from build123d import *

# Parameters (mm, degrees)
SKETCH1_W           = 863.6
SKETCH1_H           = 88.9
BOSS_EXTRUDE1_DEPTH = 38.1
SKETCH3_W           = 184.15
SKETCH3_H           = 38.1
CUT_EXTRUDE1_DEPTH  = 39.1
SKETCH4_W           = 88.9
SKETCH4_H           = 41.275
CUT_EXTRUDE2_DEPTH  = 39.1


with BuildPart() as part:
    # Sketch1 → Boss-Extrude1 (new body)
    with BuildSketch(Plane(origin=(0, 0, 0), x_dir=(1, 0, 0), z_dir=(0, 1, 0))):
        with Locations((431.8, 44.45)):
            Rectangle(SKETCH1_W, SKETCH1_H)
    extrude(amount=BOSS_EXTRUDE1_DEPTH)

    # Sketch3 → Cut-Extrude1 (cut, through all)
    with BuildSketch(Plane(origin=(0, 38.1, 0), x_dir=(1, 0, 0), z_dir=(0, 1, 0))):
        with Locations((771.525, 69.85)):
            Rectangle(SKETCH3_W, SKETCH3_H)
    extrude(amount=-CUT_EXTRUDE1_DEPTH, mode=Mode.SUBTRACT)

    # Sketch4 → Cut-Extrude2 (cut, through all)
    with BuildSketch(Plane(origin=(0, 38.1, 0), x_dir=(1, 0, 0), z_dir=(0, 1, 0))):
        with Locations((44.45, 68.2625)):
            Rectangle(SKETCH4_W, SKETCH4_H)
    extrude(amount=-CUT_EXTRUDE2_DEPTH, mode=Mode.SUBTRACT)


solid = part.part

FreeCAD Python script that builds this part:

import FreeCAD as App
import Part
import Sketcher
Q = App.Units.Quantity

doc = App.newDocument("Part")
body = doc.addObject("PartDesign::Body", "Body")

# Sketch on XZ plane
sketch1 = body.newObject("Sketcher::SketchObject", "Sketch")
sketch1.AttachmentSupport = (doc.getObject("XZ_Plane"), [""])
sketch1.MapMode = "FlatFace"
sketch1.addGeometry([
    Part.LineSegment(App.Vector(0, -89, 0), App.Vector(0, 0, 0)),
    Part.LineSegment(App.Vector(0, 0, 0), App.Vector(864, 0, 0)),
    Part.LineSegment(App.Vector(864, 0, 0), App.Vector(864, -89, 0)),
    Part.LineSegment(App.Vector(864, -89, 0), App.Vector(0, -89, 0)),
], False)
sketch1.addConstraint([
    Sketcher.Constraint("Coincident", 0, 2, 1, 1),
    Sketcher.Constraint("Coincident", 1, 2, 2, 1),
    Sketcher.Constraint("Coincident", 2, 2, 3, 1),
    Sketcher.Constraint("Coincident", 3, 2, 0, 1),
    Sketcher.Constraint("Vertical", 0),
    Sketcher.Constraint("Horizontal", 1),
    Sketcher.Constraint("Vertical", 2),
    Sketcher.Constraint("Horizontal", 3),
    Sketcher.Constraint("Coincident", 0, 2, -1, 1),
    Sketcher.Constraint("DistanceX", 1, 1, 1, 2, Q("34 in")),
    Sketcher.Constraint("DistanceY", 0, 1, 0, 2, Q("3.5 in")),
])
pad1 = body.newObject("PartDesign::Pad", "Pad")
pad1.Profile = sketch1
pad1.Length = Q("1.5 in")
pad1.Reversed = True

# Sketch on XZ plane
sketch2 = body.newObject("Sketcher::SketchObject", "Sketch001")
sketch2.AttachmentSupport = (doc.getObject("XZ_Plane"), [""])
sketch2.MapMode = "FlatFace"
sketch2.AttachmentOffset = App.Placement(App.Vector(0, 0, -1.5 * 25.4), App.Rotation())
sketch2.addGeometry([
    Part.LineSegment(App.Vector(679, -89, 0), App.Vector(679, -51, 0)),
    Part.LineSegment(App.Vector(679, -51, 0), App.Vector(864, -51, 0)),
    Part.LineSegment(App.Vector(864, -51, 0), App.Vector(864, -89, 0)),
    Part.LineSegment(App.Vector(864, -89, 0), App.Vector(679, -89, 0)),
], False)
sketch2.addConstraint([
    Sketcher.Constraint("Coincident", 0, 2, 1, 1),
    Sketcher.Constraint("Coincident", 1, 2, 2, 1),
    Sketcher.Constraint("Coincident", 2, 2, 3, 1),
    Sketcher.Constraint("Coincident", 3, 2, 0, 1),
    Sketcher.Constraint("Vertical", 0),
    Sketcher.Constraint("Horizontal", 1),
    Sketcher.Constraint("Vertical", 2),
    Sketcher.Constraint("Horizontal", 3),
    Sketcher.Constraint("DistanceY", 0, 1, 0, 2, Q("1.5 in")),
    Sketcher.Constraint("DistanceY", 0, 2, -1, 1, Q("2 in")),
    Sketcher.Constraint("DistanceX", -1, 1, 1, 2, Q("34 in")),
    Sketcher.Constraint("DistanceX", 1, 1, 1, 2, Q("7.25 in")),
])
pocket1 = body.newObject("PartDesign::Pocket", "Pocket")
pocket1.Profile = sketch2
pocket1.Type = "ThroughAll"
pocket1.Reversed = True

# Sketch on XZ plane
sketch3 = body.newObject("Sketcher::SketchObject", "Sketch002")
sketch3.AttachmentSupport = (doc.getObject("XZ_Plane"), [""])
sketch3.MapMode = "FlatFace"
sketch3.AttachmentOffset = App.Placement(App.Vector(0, 0, -1.5 * 25.4), App.Rotation())
sketch3.addGeometry([
    Part.LineSegment(App.Vector(0, -89, 0), App.Vector(0, -48, 0)),
    Part.LineSegment(App.Vector(0, -48, 0), App.Vector(89, -48, 0)),
    Part.LineSegment(App.Vector(89, -48, 0), App.Vector(89, -89, 0)),
    Part.LineSegment(App.Vector(89, -89, 0), App.Vector(0, -89, 0)),
], False)
sketch3.addConstraint([
    Sketcher.Constraint("Coincident", 0, 2, 1, 1),
    Sketcher.Constraint("Coincident", 1, 2, 2, 1),
    Sketcher.Constraint("Coincident", 2, 2, 3, 1),
    Sketcher.Constraint("Coincident", 3, 2, 0, 1),
    Sketcher.Constraint("Vertical", 0),
    Sketcher.Constraint("Horizontal", 1),
    Sketcher.Constraint("Vertical", 2),
    Sketcher.Constraint("Horizontal", 3),
    Sketcher.Constraint("PointOnObject", 0, 2, -2),
    Sketcher.Constraint("DistanceX", 1, 1, 1, 2, Q("3.5 in")),
    Sketcher.Constraint("DistanceY", 2, 2, -1, 1, Q("3.5 in")),
    Sketcher.Constraint("DistanceY", 0, 1, 0, 2, Q("1.625 in")),
])
pocket2 = body.newObject("PartDesign::Pocket", "Pocket001")
pocket2.Profile = sketch3
pocket2.Type = "ThroughAll"
pocket2.Reversed = True

doc.recompute()
